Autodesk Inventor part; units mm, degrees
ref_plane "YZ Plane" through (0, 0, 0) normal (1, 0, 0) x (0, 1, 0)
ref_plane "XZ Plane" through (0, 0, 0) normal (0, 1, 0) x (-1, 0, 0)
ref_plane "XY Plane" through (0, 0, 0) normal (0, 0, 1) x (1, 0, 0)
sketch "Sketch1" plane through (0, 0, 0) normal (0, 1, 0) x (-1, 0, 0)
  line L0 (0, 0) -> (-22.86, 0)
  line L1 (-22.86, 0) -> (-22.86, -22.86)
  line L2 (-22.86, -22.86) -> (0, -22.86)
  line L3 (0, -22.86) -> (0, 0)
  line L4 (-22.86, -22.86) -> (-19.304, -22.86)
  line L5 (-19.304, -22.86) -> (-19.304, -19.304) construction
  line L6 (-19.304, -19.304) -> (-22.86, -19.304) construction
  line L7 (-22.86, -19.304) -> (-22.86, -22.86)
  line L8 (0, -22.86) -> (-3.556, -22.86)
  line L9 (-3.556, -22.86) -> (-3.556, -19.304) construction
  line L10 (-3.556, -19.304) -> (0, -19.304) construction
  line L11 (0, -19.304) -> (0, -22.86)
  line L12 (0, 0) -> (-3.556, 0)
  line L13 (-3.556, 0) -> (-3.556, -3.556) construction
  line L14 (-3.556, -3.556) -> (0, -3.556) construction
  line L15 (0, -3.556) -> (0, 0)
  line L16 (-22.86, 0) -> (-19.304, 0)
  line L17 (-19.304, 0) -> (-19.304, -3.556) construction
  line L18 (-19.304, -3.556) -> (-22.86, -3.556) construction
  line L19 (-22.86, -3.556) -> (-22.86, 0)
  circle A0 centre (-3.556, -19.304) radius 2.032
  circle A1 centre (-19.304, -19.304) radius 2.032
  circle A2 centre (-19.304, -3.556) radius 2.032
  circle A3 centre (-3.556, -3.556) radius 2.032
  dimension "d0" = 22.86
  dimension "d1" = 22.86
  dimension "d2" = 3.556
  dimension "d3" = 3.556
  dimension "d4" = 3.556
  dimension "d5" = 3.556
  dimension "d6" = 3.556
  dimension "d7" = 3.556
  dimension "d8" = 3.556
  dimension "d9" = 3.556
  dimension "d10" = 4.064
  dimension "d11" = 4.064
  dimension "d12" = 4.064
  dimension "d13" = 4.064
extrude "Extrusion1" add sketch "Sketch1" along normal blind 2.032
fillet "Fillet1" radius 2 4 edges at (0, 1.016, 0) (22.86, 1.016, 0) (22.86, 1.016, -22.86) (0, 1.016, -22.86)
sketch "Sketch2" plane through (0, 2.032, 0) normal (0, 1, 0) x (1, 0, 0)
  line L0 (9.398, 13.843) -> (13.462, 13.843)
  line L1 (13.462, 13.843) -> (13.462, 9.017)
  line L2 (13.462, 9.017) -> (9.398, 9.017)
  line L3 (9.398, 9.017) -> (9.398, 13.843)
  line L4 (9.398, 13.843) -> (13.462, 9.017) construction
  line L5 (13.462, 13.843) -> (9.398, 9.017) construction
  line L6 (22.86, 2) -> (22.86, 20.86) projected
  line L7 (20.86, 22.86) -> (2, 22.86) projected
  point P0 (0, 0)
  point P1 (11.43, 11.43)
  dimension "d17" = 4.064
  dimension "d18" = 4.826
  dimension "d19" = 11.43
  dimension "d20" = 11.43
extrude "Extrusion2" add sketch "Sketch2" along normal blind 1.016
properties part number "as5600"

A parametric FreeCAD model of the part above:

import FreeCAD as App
import Part
import Sketcher
Q = App.Units.Quantity


def edges_at(feature, points):
    """Names of the edges that pass closest to the given points."""
    edges = feature.Shape.Edges
    near = lambda p: min(range(len(edges)), key=lambda i: edges[i].distToShape(Part.Vertex(*p))[0])
    return sorted({f"Edge{near(p) + 1}" for p in points})

doc = App.newDocument("Part")
body = doc.addObject("PartDesign::Body", "Body")

# Sketch on XZ plane
sketch1 = body.newObject("Sketcher::SketchObject", "Sketch")
sketch1.AttachmentSupport = (doc.getObject("XZ_Plane"), [""])
sketch1.MapMode = "FlatFace"
sketch1.addGeometry([
    Part.LineSegment(App.Vector(0, -22.9, 0), App.Vector(0, 0, 0)),  # 0
    Part.LineSegment(App.Vector(0, 0, 0), App.Vector(22.9, 0, 0)),  # 1
    Part.LineSegment(App.Vector(22.9, 0, 0), App.Vector(22.9, -22.9, 0)),  # 2
    Part.LineSegment(App.Vector(22.9, -22.9, 0), App.Vector(0, -22.9, 0)),  # 3
    Part.Circle(App.Vector(19.3, -19.3, 0), App.Vector(0, 0, 1), 2),  # 4
    Part.Circle(App.Vector(3.6, -19.3, 0), App.Vector(0, 0, 1), 2),  # 5
    Part.Circle(App.Vector(19.3, -3.6, 0), App.Vector(0, 0, 1), 2),  # 6
    Part.Circle(App.Vector(3.6, -3.6, 0), App.Vector(0, 0, 1), 2),  # 7
], False)
sketch1.addConstraint([
    Sketcher.Constraint("Coincident", 0, 2, 1, 1),
    Sketcher.Constraint("Coincident", 1, 2, 2, 1),
    Sketcher.Constraint("Coincident", 2, 2, 3, 1),
    Sketcher.Constraint("Coincident", 3, 2, 0, 1),
    Sketcher.Constraint("Vertical", 0),
    Sketcher.Constraint("Horizontal", 1),
    Sketcher.Constraint("Vertical", 2),
    Sketcher.Constraint("Horizontal", 3),
    Sketcher.Constraint("Coincident", 0, 2, -1, 1),
    Sketcher.Constraint("Equal", 4, 5),
    Sketcher.Constraint("Equal", 5, 6),
    Sketcher.Constraint("Equal", 6, 7),
    Sketcher.Constraint("Horizontal", 4, 3, 5, 3),
    Sketcher.Constraint("Horizontal", 6, 3, 7, 3),
    Sketcher.Constraint("Vertical", 4, 3, 6, 3),
    Sketcher.Constraint("Vertical", 5, 3, 7, 3),
    Sketcher.Constraint("Equal", 3, 0),
    Sketcher.Constraint("Diameter", 4, Q("0.16 in")),
    Sketcher.Constraint("DistanceX", 1, 1, 1, 2, Q("0.9 in")),
    Sketcher.Constraint("DistanceX", -1, 1, 5, 3, Q("0.14 in")),
    Sketcher.Constraint("DistanceY", 6, 3, -1, 1, Q("0.14 in")),
    Sketcher.Constraint("DistanceX", 6, 3, 1, 2, Q("0.14 in")),
    Sketcher.Constraint("DistanceY", 2, 2, 4, 3, Q("0.14 in")),
])
pad1 = body.newObject("PartDesign::Pad", "Pad")
pad1.Profile = sketch1
pad1.Length = Q("0.08 in")
pad1.Reversed = True
doc.recompute()

fillet = body.newObject("PartDesign::Fillet", "Fillet")
fillet.Base = (pad1, edges_at(pad1, [
    (0, 1.016, 0),
    (22.86, 1.016, 0),
    (22.86, 1.016, -22.86),
    (0, 1.016, -22.86),
]))
fillet.Radius = 2

# Sketch on XZ plane
sketch2 = body.newObject("Sketcher::SketchObject", "Sketch001")
sketch2.AttachmentSupport = (doc.getObject("XZ_Plane"), [""])
sketch2.MapMode = "FlatFace"
sketch2.AttachmentOffset = App.Placement(App.Vector(0, 0, -0.08 * 25.4), App.Rotation())
sketch2.addGeometry([
    Part.LineSegment(App.Vector(13.5, -13.8, 0), App.Vector(9.4, -13.8, 0)),
    Part.LineSegment(App.Vector(9.4, -13.8, 0), App.Vector(9.4, -9, 0)),
    Part.LineSegment(App.Vector(9.4, -9, 0), App.Vector(13.5, -9, 0)),
    Part.LineSegment(App.Vector(13.5, -9, 0), App.Vector(13.5, -13.8, 0)),
], False)
sketch2.addConstraint([
    Sketcher.Constraint("Coincident", 0, 2, 1, 1),
    Sketcher.Constraint("Coincident", 1, 2, 2, 1),
    Sketcher.Constraint("Coincident", 2, 2, 3, 1),
    Sketcher.Constraint("Coincident", 3, 2, 0, 1),
    Sketcher.Constraint("Horizontal", 0),
    Sketcher.Constraint("Vertical", 1),
    Sketcher.Constraint("Horizontal", 2),
    Sketcher.Constraint("Vertical", 3),
    Sketcher.Constraint("DistanceX", 0, 2, 0, 1, Q("0.16 in")),
    Sketcher.Constraint("DistanceY", 1, 1, 1, 2, Q("0.19 in")),
    Sketcher.Constraint("DistanceX", -1, 1, 0, 2, Q("0.37 in")),
    Sketcher.Constraint("DistanceY", 0, 2, -1, 1, Q("0.545 in")),
])
pad2 = body.newObject("PartDesign::Pad", "Pad001")
pad2.Profile = sketch2
pad2.Length = Q("0.04 in")
pad2.Reversed = True

doc.recompute()
